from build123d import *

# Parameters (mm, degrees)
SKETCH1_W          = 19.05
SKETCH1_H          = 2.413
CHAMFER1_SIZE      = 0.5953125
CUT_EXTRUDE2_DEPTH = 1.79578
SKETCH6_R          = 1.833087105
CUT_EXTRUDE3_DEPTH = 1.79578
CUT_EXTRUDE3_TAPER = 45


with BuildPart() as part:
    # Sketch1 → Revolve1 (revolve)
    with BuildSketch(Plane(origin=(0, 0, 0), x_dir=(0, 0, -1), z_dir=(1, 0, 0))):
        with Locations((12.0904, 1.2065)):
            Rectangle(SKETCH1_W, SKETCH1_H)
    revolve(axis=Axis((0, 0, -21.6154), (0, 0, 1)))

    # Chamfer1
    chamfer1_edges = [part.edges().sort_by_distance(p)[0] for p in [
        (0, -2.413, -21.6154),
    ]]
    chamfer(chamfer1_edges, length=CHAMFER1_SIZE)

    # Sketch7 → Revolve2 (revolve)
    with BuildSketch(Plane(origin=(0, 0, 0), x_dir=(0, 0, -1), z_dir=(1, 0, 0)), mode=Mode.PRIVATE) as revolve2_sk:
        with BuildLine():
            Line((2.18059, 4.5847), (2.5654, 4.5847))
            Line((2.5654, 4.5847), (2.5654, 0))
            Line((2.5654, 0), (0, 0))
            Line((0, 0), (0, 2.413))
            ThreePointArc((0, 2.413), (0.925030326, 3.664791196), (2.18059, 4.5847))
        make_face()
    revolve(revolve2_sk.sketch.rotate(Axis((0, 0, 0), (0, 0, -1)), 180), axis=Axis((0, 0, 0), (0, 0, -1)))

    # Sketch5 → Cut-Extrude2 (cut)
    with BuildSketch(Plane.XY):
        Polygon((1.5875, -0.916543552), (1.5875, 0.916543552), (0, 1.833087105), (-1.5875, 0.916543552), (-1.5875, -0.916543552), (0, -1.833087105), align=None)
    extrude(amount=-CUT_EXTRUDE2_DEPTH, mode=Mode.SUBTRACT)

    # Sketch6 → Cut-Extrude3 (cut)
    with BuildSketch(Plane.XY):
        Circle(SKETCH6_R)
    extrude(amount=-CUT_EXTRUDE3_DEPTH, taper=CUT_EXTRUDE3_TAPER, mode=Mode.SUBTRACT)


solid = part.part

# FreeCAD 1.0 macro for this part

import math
import FreeCAD as App
import Part
import Sketcher
from FreeCAD import Vector
Q = App.Units.Quantity


def edges_at(feature, points):
    """Names of the edges that pass closest to the given points."""
    edges = feature.Shape.Edges
    near = lambda p: min(range(len(edges)), key=lambda i: edges[i].distToShape(Part.Vertex(*p))[0])
    return sorted({f"Edge{near(p) + 1}" for p in points})


def add_polygon(sketch, points):
    """Adds a closed chain of lines whose ends are joined by coincident constraints."""
    first, n = sketch.GeometryCount, len(points)
    for a, b in zip(points, points[1:] + points[:1]):
        sketch.addGeometry(Part.LineSegment(App.Vector(*a, 0), App.Vector(*b, 0)), False)
    for i in range(n):
        sketch.addConstraint(Sketcher.Constraint("Coincident", first + i, 2, first + (i + 1) % n, 1))

doc = App.newDocument("Part")
params = doc.addObject("Spreadsheet::Sheet", "Params")
for row, (alias, value) in enumerate([
    ("sketch1_height", "0.75 in"),
    ("sketch1_width", "0.095 in"),
    ("revolution_angle", "360 deg"),
    ("chamfer_size", "0.595313 mm"),
    ("sketch2_width", "0.095 in"),
    ("sketch2_height", "0.101 in"),
    ("revolution2_angle", "360 deg"),
    ("pocket1_length", "0.0707 in"),
    ("pocket2_length", "0.0707 in"),
    ("pocket2_taper", "-45 deg"),
], start=1):
    params.set(f"A{row}", alias)
    params.set(f"B{row}", "=" + value)
    params.setAlias(f"B{row}", alias)

body = doc.addObject("PartDesign::Body", "Body")

# Sketch on YZ plane
sketch1 = body.newObject("Sketcher::SketchObject", "Sketch")
sketch1.AttachmentSupport = (doc.getObject("YZ_Plane"), [""])
sketch1.MapMode = "FlatFace"
add_polygon(sketch1, [(2.4, -2.6), (0, -2.6), (0, -21.6), (2.4, -21.6)])  # lines 0-3
sketch1.addConstraint([
    Sketcher.Constraint("Horizontal", 0),
    Sketcher.Constraint("Vertical", 1),
    Sketcher.Constraint("Horizontal", 2),
    Sketcher.Constraint("Vertical", 3),
    Sketcher.Constraint("PointOnObject", 0, 2, -2),
    Sketcher.Constraint("DistanceY", 1, 2, 1, 1, Q("0.75 in")),
    Sketcher.Constraint("DistanceX", 0, 2, 0, 1, Q("0.095 in")),
    Sketcher.Constraint("DistanceY", 0, 2, -1, 1, Q("0.101 in")),
])
sketch1.setExpression("Constraints[9]", "Params.sketch1_height")
sketch1.setExpression("Constraints[10]", "Params.sketch1_width")
revolution = body.newObject("PartDesign::Revolution", "Revolution")
revolution.Profile = sketch1
revolution.ReferenceAxis = (sketch1, ["V_Axis"])
revolution.setExpression("Angle", "Params.revolution_angle")
doc.recompute()

chamfer = body.newObject("PartDesign::Chamfer", "Chamfer")
chamfer.Base = (revolution, edges_at(revolution, [(0, -2.413, -21.615)]))
chamfer.setExpression("Size", "Params.chamfer_size")

# Sketch on YZ plane
sketch2 = body.newObject("Sketcher::SketchObject", "Sketch001")
sketch2.AttachmentSupport = (doc.getObject("YZ_Plane"), [""])
sketch2.MapMode = "FlatFace"
sketch2.addGeometry([
    Part.LineSegment(Vector(4.58, -2.57, 0), Vector(4.58, -2.18, 0)),  # 0
    Part.ArcOfCircle(Part.Circle(Vector(0, -4.57, 0), Vector(0, 0, 1), 5.17), math.radians(28), math.radians(62)),  # 1
    Part.LineSegment(Vector(2.41, 0, 0), Vector(0, 0, 0)),  # 2
    Part.LineSegment(Vector(0, 0, 0), Vector(0, -2.57, 0)),  # 3
    Part.LineSegment(Vector(0, -2.57, 0), Vector(4.58, -2.57, 0)),  # 4
], False)
sketch2.addConstraint([
    Sketcher.Constraint("Coincident", 0, 2, 1, 1),
    Sketcher.Constraint("Coincident", 1, 2, 2, 1),
    Sketcher.Constraint("Coincident", 2, 2, 3, 1),
    Sketcher.Constraint("Coincident", 3, 2, 4, 1),
    Sketcher.Constraint("Coincident", 4, 2, 0, 1),
    Sketcher.Constraint("Vertical", 0),
    Sketcher.Constraint("Horizontal", 2),
    Sketcher.Constraint("Vertical", 3),
    Sketcher.Constraint("Horizontal", 4),
    Sketcher.Constraint("Coincident", 2, 2, -1, 1),
    Sketcher.Constraint("PointOnObject", 1, 3, -2),
    Sketcher.Constraint("DistanceX", 2, 2, 2, 1, Q("0.095 in")),
    Sketcher.Constraint("DistanceY", 3, 2, 3, 1, Q("0.101 in")),
    Sketcher.Constraint("DistanceX", 4, 1, 4, 2, Q("0.1805 in")),
    Sketcher.Constraint("Radius", 1, 5.172243),
])
sketch2.setExpression("Constraints[11]", "Params.sketch2_width")
sketch2.setExpression("Constraints[12]", "Params.sketch2_height")
revolution2 = body.newObject("PartDesign::Revolution", "Revolution001")
revolution2.Profile = sketch2
revolution2.ReferenceAxis = (sketch2, ["V_Axis"])
revolution2.setExpression("Angle", "Params.revolution2_angle")

# Sketch on XY plane
sketch3 = body.newObject("Sketcher::SketchObject", "Sketch002")
sketch3.AttachmentSupport = (doc.getObject("XY_Plane"), [""])
sketch3.MapMode = "FlatFace"
add_polygon(sketch3, [(1.6, -0.9), (1.6, 0.9), (0, 1.8), (-1.6, 0.9), (-1.6, -0.9), (0, -1.8)])  # lines 0-5
sketch3.addConstraint([
    Sketcher.Constraint("Vertical", 0),
    Sketcher.Constraint("Vertical", 3),
    Sketcher.Constraint("Symmetric", 0, 2, 3, 2, -1, 1),
    Sketcher.Constraint("Symmetric", 1, 2, 4, 2, -1, 1),
    Sketcher.Constraint("PointOnObject", 1, 2, -2),
    Sketcher.Constraint("Parallel", 2, 5),
    Sketcher.Constraint("Horizontal", 0, 2, 2, 2),
    Sketcher.Constraint("Angle", 1, Q("150 deg")),
    Sketcher.Constraint("DistanceX", -1, 1, 0, 2, Q("0.0625 in")),
    Sketcher.Constraint("DistanceY", 0, 1, 0, 2, 1.833087),
])
pocket1 = body.newObject("PartDesign::Pocket", "Pocket")
pocket1.Profile = sketch3
pocket1.setExpression("Length", "Params.pocket1_length")

# Sketch on XY plane
sketch4 = body.newObject("Sketcher::SketchObject", "Sketch003")
sketch4.AttachmentSupport = (doc.getObject("XY_Plane"), [""])
sketch4.MapMode = "FlatFace"
sketch4.addGeometry(Part.Circle(Vector(0, 0, 0), Vector(0, 0, 1), 1.8), False)
sketch4.addConstraint([
    Sketcher.Constraint("Coincident", 0, 3, -1, 1),
    Sketcher.Constraint("Diameter", 0, 3.666174),
])
pocket2 = body.newObject("PartDesign::Pocket", "Pocket001")
pocket2.Profile = sketch4
pocket2.setExpression("Length", "Params.pocket2_length")
pocket2.setExpression("TaperAngle", "Params.pocket2_taper")

doc.recompute()
